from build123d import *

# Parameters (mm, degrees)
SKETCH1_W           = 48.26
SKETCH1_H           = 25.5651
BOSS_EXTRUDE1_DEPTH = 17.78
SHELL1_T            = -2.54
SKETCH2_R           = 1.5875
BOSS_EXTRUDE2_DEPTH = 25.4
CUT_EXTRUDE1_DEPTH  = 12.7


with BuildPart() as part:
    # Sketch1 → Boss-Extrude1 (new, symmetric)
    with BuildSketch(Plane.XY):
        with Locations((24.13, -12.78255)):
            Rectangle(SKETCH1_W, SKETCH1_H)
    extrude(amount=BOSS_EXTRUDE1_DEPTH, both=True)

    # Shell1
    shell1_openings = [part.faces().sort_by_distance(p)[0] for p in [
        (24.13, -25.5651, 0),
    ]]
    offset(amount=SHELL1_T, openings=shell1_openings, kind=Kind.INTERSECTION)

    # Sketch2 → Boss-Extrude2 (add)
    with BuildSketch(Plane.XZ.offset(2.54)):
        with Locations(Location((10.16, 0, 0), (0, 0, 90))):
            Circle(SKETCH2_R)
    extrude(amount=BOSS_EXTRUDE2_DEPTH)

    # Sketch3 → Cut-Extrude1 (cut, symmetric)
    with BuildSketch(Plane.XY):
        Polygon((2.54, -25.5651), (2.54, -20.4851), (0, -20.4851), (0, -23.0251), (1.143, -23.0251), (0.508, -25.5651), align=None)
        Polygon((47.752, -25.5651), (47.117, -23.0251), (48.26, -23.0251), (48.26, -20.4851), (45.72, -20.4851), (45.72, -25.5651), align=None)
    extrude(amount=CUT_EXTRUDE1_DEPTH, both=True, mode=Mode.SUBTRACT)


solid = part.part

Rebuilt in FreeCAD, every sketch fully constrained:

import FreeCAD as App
import Part
import Sketcher

V = App.Vector
Q = App.Units.Quantity


def faces_at(feature, points):
    """Names of the faces that lie closest to the given points."""
    faces = feature.Shape.Faces
    near = lambda p: min(range(len(faces)), key=lambda i: faces[i].distToShape(Part.Vertex(*p))[0])
    return sorted({f"Face{near(p) + 1}" for p in points})


def add_polygon(sketch, points):
    """Adds a closed chain of lines whose ends are joined by coincident constraints."""
    first, n = sketch.GeometryCount, len(points)
    for a, b in zip(points, points[1:] + points[:1]):
        sketch.addGeometry(Part.LineSegment(App.Vector(*a, 0), App.Vector(*b, 0)), False)
    for i in range(n):
        sketch.addConstraint(Sketcher.Constraint("Coincident", first + i, 2, first + (i + 1) % n, 1))

doc = App.newDocument("Part")
params = doc.addObject("Spreadsheet::Sheet", "Params")
for row, (alias, value) in enumerate([
    ("sketch1_width", "1.9 in"),
    ("pad1_length", "1.4 in"),
    ("thickness_wall", "0.1 in"),
    ("sketch2_diameter", "0.125 in"),
    ("pad2_length", "1 in"),
    ("sketch3_width", "0.1 in"),
    ("sketch3_height", "0.2 in"),
    ("sketch3_width2", "0.08 in"),
    ("sketch3_width3", "0.045 in"),
    ("pocket1_length", "1 in"),
], start=1):
    params.set(f"A{row}", alias)
    params.set(f"B{row}", "=" + value)
    params.setAlias(f"B{row}", alias)

body = doc.addObject("PartDesign::Body", "Body")

sketch1 = body.newObject("Sketcher::SketchObject", "Sketch")
sketch1.AttachmentSupport = (doc.getObject("XY_Plane"), [""])
sketch1.MapMode = "FlatFace"
add_polygon(sketch1, [(0, 0), (0, -26), (48, -26), (48, 0)])
sketch1.addConstraint([
    Sketcher.Constraint("Vertical", 0),
    Sketcher.Constraint("Horizontal", 1),
    Sketcher.Constraint("Vertical", 2),
    Sketcher.Constraint("Horizontal", 3),
    Sketcher.Constraint("Coincident", 3, 2, -1, 1),
    Sketcher.Constraint("DistanceX", 1, 1, 1, 2, Q("1.9 in")),
    Sketcher.Constraint("DistanceY", 0, 2, 0, 1, Q("1.0065 in")),
])
sketch1.setExpression("Constraints[9]", "Params.sketch1_width")
pad1 = body.newObject("PartDesign::Pad", "Pad")
pad1.Profile = sketch1
pad1.setExpression("Length", "Params.pad1_length")
pad1.Midplane = True
doc.recompute()

thickness = body.newObject("PartDesign::Thickness", "Thickness")
thickness.Base = (pad1, faces_at(pad1, [(24.13, -25.565, 0)]))
thickness.setExpression("Value", "Params.thickness_wall")
thickness.Reversed = True
thickness.Join = "Intersection"

sketch2 = body.newObject("Sketcher::SketchObject", "Sketch001")
sketch2.AttachmentSupport = (doc.getObject("XZ_Plane"), [""])
sketch2.MapMode = "FlatFace"
sketch2.AttachmentOffset = App.Placement(V(0, 0, 0.1 * 25.4), App.Rotation())
sketch2.addGeometry(Part.Circle(V(10.2, 0, 0), V(0, 0, 1), 1.6), False)
sketch2.addConstraint([
    Sketcher.Constraint("PointOnObject", 0, 3, -1),
    Sketcher.Constraint("Diameter", 0, Q("0.125 in")),
    Sketcher.Constraint("DistanceX", -1, 1, 0, 3, Q("0.4 in")),
])
sketch2.setExpression("Constraints[1]", "Params.sketch2_diameter")
pad2 = body.newObject("PartDesign::Pad", "Pad001")
pad2.Profile = sketch2
pad2.setExpression("Length", "Params.pad2_length")

sketch3 = body.newObject("Sketcher::SketchObject", "Sketch002")
sketch3.AttachmentSupport = (doc.getObject("XY_Plane"), [""])
sketch3.MapMode = "FlatFace"
add_polygon(sketch3, [(2.5, -25.6), (2.5, -20.5), (0, -20.5), (0, -23), (1.1, -23), (0.5, -25.6)])
add_polygon(sketch3, [(47.8, -25.6), (47.1, -23), (48.3, -23), (48.3, -20.5), (45.7, -20.5), (45.7, -25.6)])
sketch3.addConstraint([
    Sketcher.Constraint("Vertical", 0),
    Sketcher.Constraint("Horizontal", 1),
    Sketcher.Constraint("Vertical", 2),
    Sketcher.Constraint("Horizontal", 3),
    Sketcher.Constraint("Horizontal", 5),
    Sketcher.Constraint("Horizontal", 7),
    Sketcher.Constraint("Vertical", 8),
    Sketcher.Constraint("Horizontal", 9),
    Sketcher.Constraint("Vertical", 10),
    Sketcher.Constraint("Horizontal", 11),
    Sketcher.Constraint("PointOnObject", 1, 2, -2),
    Sketcher.Constraint("Horizontal", 3, 2, 6, 2),
    Sketcher.Constraint("Horizontal", 1, 2, 8, 2),
    Sketcher.Constraint("Horizontal", 5, 2, 10, 2),
    Sketcher.Constraint("Equal", 3, 7),
    Sketcher.Constraint("Equal", 1, 9),
    Sketcher.Constraint("Equal", 5, 11),
    Sketcher.Constraint("Equal", 9, 2),
    Sketcher.Constraint("DistanceX", 1, 2, 1, 1, Q("0.1 in")),
    Sketcher.Constraint("DistanceY", 0, 1, 0, 2, Q("0.2 in")),
    Sketcher.Constraint("DistanceX", 5, 1, 5, 2, Q("0.08 in")),
    Sketcher.Constraint("DistanceX", -1, 1, 7, 2, Q("1.9 in")),
    Sketcher.Constraint("DistanceX", 3, 1, 3, 2, Q("0.045 in")),
    Sketcher.Constraint("DistanceY", 0, 2, -1, 1, Q("0.8065 in")),
])
sketch3.setExpression("Constraints[30]", "Params.sketch3_width")
sketch3.setExpression("Constraints[31]", "Params.sketch3_height")
sketch3.setExpression("Constraints[32]", "Params.sketch3_width2")
sketch3.setExpression("Constraints[34]", "Params.sketch3_width3")
pocket1 = body.newObject("PartDesign::Pocket", "Pocket")
pocket1.Profile = sketch3
pocket1.setExpression("Length", "Params.pocket1_length")
pocket1.Midplane = True

doc.recompute()
